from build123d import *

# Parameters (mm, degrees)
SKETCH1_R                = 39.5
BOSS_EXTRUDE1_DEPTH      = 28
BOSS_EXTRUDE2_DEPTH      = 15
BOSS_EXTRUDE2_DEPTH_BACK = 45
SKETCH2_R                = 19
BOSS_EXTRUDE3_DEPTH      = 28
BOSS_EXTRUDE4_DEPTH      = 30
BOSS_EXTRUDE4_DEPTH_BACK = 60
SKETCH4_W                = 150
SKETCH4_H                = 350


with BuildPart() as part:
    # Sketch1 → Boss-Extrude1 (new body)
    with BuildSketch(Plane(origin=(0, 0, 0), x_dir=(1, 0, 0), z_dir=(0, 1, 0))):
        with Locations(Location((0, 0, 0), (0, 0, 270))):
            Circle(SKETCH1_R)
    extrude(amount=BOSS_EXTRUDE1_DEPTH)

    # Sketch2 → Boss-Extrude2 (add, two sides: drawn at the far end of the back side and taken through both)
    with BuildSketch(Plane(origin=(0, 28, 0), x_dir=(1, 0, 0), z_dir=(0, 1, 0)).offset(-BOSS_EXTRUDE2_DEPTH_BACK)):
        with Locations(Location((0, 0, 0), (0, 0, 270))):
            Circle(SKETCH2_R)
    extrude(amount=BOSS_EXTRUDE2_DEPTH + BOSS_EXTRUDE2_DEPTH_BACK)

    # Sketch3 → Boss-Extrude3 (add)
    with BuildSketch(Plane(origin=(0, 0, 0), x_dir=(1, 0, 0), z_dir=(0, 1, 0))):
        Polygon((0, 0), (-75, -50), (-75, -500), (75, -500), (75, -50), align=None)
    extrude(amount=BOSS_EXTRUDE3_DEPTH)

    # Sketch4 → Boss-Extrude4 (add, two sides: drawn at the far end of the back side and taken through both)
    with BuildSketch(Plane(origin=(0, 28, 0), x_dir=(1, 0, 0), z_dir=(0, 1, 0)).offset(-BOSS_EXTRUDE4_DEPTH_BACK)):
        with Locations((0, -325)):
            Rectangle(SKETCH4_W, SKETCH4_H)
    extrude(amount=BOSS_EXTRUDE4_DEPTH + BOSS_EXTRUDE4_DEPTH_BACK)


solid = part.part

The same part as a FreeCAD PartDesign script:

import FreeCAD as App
import Part
import Sketcher

V = App.Vector
Q = App.Units.Quantity

doc = App.newDocument("Part")
body = doc.addObject("PartDesign::Body", "Body")

# Sketch on XZ plane
sketch1 = doc.addObject("Sketcher::SketchObject", "Sketch")
body.addObject(sketch1)
sketch1.AttachmentSupport = (doc.XZ_Plane, [""])
sketch1.MapMode = "FlatFace"
sketch1.addGeometry(Part.Circle(V(0, 0, 0), V(0, 0, 1), 40), False)
sketch1.addConstraint(Sketcher.Constraint("Coincident", 0, 3, -1, 1))
sketch1.addConstraint(Sketcher.Constraint("Diameter", 0, Q("79 mm")))
pad1 = doc.addObject("PartDesign::Pad", "Pad")
body.addObject(pad1)
pad1.Profile = sketch1
pad1.Length = 28
pad1.Reversed = True

# Sketch on XZ plane
sketch2 = doc.addObject("Sketcher::SketchObject", "Sketch001")
body.addObject(sketch2)
sketch2.AttachmentSupport = (doc.XZ_Plane, [""])
sketch2.MapMode = "FlatFace"
sketch2.AttachmentOffset = App.Placement(V(0, 0, -28), App.Rotation())
sketch2.addGeometry(Part.Circle(V(0, 0, 0), V(0, 0, 1), 19), False)
sketch2.addConstraint(Sketcher.Constraint("Coincident", 0, 3, -1, 1))
sketch2.addConstraint(Sketcher.Constraint("Diameter", 0, Q("38 mm")))
pad2 = doc.addObject("PartDesign::Pad", "Pad001")
body.addObject(pad2)
pad2.Profile = sketch2
pad2.Type = "TwoLengths"
pad2.Length = 15
pad2.Length2 = 45
pad2.Reversed = True

# Sketch on XZ plane
sketch3 = doc.addObject("Sketcher::SketchObject", "Sketch002")
body.addObject(sketch3)
sketch3.AttachmentSupport = (doc.XZ_Plane, [""])
sketch3.MapMode = "FlatFace"
sketch3.addGeometry(Part.LineSegment(V(0, 0, 0), V(-75, 50, 0)), False)
sketch3.addGeometry(Part.LineSegment(V(-75, 50, 0), V(-75, 500, 0)), False)
sketch3.addGeometry(Part.LineSegment(V(-75, 500, 0), V(75, 500, 0)), False)
sketch3.addGeometry(Part.LineSegment(V(75, 500, 0), V(75, 50, 0)), False)
sketch3.addGeometry(Part.LineSegment(V(75, 50, 0), V(0, 0, 0)), False)
sketch3.addConstraint(Sketcher.Constraint("Coincident", 0, 2, 1, 1))
sketch3.addConstraint(Sketcher.Constraint("Coincident", 1, 2, 2, 1))
sketch3.addConstraint(Sketcher.Constraint("Coincident", 2, 2, 3, 1))
sketch3.addConstraint(Sketcher.Constraint("Coincident", 3, 2, 4, 1))
sketch3.addConstraint(Sketcher.Constraint("Coincident", 4, 2, 0, 1))
sketch3.addConstraint(Sketcher.Constraint("Vertical", 1))
sketch3.addConstraint(Sketcher.Constraint("Horizontal", 2))
sketch3.addConstraint(Sketcher.Constraint("Vertical", 3))
sketch3.addConstraint(Sketcher.Constraint("Coincident", 4, 2, -1, 1))
sketch3.addConstraint(Sketcher.Constraint("Symmetric", 0, 2, 3, 2, -2))
sketch3.addConstraint(Sketcher.Constraint("DistanceX", 2, 1, 2, 2, Q("150 mm")))
sketch3.addConstraint(Sketcher.Constraint("DistanceY", 1, 1, 1, 2, Q("450 mm")))
sketch3.addConstraint(Sketcher.Constraint("DistanceY", -1, 1, 0, 2, Q("50 mm")))
pad3 = doc.addObject("PartDesign::Pad", "Pad002")
body.addObject(pad3)
pad3.Profile = sketch3
pad3.Length = 28
pad3.Reversed = True

# Sketch on XZ plane
sketch4 = doc.addObject("Sketcher::SketchObject", "Sketch003")
body.addObject(sketch4)
sketch4.AttachmentSupport = (doc.XZ_Plane, [""])
sketch4.MapMode = "FlatFace"
sketch4.AttachmentOffset = App.Placement(V(0, 0, -28), App.Rotation())
sketch4.addGeometry(Part.LineSegment(V(-75, 150, 0), V(-75, 500, 0)), False)
sketch4.addGeometry(Part.LineSegment(V(-75, 500, 0), V(75, 500, 0)), False)
sketch4.addGeometry(Part.LineSegment(V(75, 500, 0), V(75, 150, 0)), False)
sketch4.addGeometry(Part.LineSegment(V(75, 150, 0), V(-75, 150, 0)), False)
sketch4.addConstraint(Sketcher.Constraint("Coincident", 0, 2, 1, 1))
sketch4.addConstraint(Sketcher.Constraint("Coincident", 1, 2, 2, 1))
sketch4.addConstraint(Sketcher.Constraint("Coincident", 2, 2, 3, 1))
sketch4.addConstraint(Sketcher.Constraint("Coincident", 3, 2, 0, 1))
sketch4.addConstraint(Sketcher.Constraint("Vertical", 0))
sketch4.addConstraint(Sketcher.Constraint("Horizontal", 1))
sketch4.addConstraint(Sketcher.Constraint("Vertical", 2))
sketch4.addConstraint(Sketcher.Constraint("Horizontal", 3))
sketch4.addConstraint(Sketcher.Constraint("DistanceX", 1, 1, 1, 2, Q("150 mm")))
sketch4.addConstraint(Sketcher.Constraint("DistanceY", 0, 1, 0, 2, Q("350 mm")))
sketch4.addConstraint(Sketcher.Constraint("DistanceX", 0, 2, -1, 1, Q("75 mm")))
sketch4.addConstraint(Sketcher.Constraint("DistanceY", -1, 1, 0, 2, Q("500 mm")))
pad4 = doc.addObject("PartDesign::Pad", "Pad003")
body.addObject(pad4)
pad4.Profile = sketch4
pad4.Type = "TwoLengths"
pad4.Length = 30
pad4.Length2 = 60
pad4.Reversed = True

doc.recompute()
